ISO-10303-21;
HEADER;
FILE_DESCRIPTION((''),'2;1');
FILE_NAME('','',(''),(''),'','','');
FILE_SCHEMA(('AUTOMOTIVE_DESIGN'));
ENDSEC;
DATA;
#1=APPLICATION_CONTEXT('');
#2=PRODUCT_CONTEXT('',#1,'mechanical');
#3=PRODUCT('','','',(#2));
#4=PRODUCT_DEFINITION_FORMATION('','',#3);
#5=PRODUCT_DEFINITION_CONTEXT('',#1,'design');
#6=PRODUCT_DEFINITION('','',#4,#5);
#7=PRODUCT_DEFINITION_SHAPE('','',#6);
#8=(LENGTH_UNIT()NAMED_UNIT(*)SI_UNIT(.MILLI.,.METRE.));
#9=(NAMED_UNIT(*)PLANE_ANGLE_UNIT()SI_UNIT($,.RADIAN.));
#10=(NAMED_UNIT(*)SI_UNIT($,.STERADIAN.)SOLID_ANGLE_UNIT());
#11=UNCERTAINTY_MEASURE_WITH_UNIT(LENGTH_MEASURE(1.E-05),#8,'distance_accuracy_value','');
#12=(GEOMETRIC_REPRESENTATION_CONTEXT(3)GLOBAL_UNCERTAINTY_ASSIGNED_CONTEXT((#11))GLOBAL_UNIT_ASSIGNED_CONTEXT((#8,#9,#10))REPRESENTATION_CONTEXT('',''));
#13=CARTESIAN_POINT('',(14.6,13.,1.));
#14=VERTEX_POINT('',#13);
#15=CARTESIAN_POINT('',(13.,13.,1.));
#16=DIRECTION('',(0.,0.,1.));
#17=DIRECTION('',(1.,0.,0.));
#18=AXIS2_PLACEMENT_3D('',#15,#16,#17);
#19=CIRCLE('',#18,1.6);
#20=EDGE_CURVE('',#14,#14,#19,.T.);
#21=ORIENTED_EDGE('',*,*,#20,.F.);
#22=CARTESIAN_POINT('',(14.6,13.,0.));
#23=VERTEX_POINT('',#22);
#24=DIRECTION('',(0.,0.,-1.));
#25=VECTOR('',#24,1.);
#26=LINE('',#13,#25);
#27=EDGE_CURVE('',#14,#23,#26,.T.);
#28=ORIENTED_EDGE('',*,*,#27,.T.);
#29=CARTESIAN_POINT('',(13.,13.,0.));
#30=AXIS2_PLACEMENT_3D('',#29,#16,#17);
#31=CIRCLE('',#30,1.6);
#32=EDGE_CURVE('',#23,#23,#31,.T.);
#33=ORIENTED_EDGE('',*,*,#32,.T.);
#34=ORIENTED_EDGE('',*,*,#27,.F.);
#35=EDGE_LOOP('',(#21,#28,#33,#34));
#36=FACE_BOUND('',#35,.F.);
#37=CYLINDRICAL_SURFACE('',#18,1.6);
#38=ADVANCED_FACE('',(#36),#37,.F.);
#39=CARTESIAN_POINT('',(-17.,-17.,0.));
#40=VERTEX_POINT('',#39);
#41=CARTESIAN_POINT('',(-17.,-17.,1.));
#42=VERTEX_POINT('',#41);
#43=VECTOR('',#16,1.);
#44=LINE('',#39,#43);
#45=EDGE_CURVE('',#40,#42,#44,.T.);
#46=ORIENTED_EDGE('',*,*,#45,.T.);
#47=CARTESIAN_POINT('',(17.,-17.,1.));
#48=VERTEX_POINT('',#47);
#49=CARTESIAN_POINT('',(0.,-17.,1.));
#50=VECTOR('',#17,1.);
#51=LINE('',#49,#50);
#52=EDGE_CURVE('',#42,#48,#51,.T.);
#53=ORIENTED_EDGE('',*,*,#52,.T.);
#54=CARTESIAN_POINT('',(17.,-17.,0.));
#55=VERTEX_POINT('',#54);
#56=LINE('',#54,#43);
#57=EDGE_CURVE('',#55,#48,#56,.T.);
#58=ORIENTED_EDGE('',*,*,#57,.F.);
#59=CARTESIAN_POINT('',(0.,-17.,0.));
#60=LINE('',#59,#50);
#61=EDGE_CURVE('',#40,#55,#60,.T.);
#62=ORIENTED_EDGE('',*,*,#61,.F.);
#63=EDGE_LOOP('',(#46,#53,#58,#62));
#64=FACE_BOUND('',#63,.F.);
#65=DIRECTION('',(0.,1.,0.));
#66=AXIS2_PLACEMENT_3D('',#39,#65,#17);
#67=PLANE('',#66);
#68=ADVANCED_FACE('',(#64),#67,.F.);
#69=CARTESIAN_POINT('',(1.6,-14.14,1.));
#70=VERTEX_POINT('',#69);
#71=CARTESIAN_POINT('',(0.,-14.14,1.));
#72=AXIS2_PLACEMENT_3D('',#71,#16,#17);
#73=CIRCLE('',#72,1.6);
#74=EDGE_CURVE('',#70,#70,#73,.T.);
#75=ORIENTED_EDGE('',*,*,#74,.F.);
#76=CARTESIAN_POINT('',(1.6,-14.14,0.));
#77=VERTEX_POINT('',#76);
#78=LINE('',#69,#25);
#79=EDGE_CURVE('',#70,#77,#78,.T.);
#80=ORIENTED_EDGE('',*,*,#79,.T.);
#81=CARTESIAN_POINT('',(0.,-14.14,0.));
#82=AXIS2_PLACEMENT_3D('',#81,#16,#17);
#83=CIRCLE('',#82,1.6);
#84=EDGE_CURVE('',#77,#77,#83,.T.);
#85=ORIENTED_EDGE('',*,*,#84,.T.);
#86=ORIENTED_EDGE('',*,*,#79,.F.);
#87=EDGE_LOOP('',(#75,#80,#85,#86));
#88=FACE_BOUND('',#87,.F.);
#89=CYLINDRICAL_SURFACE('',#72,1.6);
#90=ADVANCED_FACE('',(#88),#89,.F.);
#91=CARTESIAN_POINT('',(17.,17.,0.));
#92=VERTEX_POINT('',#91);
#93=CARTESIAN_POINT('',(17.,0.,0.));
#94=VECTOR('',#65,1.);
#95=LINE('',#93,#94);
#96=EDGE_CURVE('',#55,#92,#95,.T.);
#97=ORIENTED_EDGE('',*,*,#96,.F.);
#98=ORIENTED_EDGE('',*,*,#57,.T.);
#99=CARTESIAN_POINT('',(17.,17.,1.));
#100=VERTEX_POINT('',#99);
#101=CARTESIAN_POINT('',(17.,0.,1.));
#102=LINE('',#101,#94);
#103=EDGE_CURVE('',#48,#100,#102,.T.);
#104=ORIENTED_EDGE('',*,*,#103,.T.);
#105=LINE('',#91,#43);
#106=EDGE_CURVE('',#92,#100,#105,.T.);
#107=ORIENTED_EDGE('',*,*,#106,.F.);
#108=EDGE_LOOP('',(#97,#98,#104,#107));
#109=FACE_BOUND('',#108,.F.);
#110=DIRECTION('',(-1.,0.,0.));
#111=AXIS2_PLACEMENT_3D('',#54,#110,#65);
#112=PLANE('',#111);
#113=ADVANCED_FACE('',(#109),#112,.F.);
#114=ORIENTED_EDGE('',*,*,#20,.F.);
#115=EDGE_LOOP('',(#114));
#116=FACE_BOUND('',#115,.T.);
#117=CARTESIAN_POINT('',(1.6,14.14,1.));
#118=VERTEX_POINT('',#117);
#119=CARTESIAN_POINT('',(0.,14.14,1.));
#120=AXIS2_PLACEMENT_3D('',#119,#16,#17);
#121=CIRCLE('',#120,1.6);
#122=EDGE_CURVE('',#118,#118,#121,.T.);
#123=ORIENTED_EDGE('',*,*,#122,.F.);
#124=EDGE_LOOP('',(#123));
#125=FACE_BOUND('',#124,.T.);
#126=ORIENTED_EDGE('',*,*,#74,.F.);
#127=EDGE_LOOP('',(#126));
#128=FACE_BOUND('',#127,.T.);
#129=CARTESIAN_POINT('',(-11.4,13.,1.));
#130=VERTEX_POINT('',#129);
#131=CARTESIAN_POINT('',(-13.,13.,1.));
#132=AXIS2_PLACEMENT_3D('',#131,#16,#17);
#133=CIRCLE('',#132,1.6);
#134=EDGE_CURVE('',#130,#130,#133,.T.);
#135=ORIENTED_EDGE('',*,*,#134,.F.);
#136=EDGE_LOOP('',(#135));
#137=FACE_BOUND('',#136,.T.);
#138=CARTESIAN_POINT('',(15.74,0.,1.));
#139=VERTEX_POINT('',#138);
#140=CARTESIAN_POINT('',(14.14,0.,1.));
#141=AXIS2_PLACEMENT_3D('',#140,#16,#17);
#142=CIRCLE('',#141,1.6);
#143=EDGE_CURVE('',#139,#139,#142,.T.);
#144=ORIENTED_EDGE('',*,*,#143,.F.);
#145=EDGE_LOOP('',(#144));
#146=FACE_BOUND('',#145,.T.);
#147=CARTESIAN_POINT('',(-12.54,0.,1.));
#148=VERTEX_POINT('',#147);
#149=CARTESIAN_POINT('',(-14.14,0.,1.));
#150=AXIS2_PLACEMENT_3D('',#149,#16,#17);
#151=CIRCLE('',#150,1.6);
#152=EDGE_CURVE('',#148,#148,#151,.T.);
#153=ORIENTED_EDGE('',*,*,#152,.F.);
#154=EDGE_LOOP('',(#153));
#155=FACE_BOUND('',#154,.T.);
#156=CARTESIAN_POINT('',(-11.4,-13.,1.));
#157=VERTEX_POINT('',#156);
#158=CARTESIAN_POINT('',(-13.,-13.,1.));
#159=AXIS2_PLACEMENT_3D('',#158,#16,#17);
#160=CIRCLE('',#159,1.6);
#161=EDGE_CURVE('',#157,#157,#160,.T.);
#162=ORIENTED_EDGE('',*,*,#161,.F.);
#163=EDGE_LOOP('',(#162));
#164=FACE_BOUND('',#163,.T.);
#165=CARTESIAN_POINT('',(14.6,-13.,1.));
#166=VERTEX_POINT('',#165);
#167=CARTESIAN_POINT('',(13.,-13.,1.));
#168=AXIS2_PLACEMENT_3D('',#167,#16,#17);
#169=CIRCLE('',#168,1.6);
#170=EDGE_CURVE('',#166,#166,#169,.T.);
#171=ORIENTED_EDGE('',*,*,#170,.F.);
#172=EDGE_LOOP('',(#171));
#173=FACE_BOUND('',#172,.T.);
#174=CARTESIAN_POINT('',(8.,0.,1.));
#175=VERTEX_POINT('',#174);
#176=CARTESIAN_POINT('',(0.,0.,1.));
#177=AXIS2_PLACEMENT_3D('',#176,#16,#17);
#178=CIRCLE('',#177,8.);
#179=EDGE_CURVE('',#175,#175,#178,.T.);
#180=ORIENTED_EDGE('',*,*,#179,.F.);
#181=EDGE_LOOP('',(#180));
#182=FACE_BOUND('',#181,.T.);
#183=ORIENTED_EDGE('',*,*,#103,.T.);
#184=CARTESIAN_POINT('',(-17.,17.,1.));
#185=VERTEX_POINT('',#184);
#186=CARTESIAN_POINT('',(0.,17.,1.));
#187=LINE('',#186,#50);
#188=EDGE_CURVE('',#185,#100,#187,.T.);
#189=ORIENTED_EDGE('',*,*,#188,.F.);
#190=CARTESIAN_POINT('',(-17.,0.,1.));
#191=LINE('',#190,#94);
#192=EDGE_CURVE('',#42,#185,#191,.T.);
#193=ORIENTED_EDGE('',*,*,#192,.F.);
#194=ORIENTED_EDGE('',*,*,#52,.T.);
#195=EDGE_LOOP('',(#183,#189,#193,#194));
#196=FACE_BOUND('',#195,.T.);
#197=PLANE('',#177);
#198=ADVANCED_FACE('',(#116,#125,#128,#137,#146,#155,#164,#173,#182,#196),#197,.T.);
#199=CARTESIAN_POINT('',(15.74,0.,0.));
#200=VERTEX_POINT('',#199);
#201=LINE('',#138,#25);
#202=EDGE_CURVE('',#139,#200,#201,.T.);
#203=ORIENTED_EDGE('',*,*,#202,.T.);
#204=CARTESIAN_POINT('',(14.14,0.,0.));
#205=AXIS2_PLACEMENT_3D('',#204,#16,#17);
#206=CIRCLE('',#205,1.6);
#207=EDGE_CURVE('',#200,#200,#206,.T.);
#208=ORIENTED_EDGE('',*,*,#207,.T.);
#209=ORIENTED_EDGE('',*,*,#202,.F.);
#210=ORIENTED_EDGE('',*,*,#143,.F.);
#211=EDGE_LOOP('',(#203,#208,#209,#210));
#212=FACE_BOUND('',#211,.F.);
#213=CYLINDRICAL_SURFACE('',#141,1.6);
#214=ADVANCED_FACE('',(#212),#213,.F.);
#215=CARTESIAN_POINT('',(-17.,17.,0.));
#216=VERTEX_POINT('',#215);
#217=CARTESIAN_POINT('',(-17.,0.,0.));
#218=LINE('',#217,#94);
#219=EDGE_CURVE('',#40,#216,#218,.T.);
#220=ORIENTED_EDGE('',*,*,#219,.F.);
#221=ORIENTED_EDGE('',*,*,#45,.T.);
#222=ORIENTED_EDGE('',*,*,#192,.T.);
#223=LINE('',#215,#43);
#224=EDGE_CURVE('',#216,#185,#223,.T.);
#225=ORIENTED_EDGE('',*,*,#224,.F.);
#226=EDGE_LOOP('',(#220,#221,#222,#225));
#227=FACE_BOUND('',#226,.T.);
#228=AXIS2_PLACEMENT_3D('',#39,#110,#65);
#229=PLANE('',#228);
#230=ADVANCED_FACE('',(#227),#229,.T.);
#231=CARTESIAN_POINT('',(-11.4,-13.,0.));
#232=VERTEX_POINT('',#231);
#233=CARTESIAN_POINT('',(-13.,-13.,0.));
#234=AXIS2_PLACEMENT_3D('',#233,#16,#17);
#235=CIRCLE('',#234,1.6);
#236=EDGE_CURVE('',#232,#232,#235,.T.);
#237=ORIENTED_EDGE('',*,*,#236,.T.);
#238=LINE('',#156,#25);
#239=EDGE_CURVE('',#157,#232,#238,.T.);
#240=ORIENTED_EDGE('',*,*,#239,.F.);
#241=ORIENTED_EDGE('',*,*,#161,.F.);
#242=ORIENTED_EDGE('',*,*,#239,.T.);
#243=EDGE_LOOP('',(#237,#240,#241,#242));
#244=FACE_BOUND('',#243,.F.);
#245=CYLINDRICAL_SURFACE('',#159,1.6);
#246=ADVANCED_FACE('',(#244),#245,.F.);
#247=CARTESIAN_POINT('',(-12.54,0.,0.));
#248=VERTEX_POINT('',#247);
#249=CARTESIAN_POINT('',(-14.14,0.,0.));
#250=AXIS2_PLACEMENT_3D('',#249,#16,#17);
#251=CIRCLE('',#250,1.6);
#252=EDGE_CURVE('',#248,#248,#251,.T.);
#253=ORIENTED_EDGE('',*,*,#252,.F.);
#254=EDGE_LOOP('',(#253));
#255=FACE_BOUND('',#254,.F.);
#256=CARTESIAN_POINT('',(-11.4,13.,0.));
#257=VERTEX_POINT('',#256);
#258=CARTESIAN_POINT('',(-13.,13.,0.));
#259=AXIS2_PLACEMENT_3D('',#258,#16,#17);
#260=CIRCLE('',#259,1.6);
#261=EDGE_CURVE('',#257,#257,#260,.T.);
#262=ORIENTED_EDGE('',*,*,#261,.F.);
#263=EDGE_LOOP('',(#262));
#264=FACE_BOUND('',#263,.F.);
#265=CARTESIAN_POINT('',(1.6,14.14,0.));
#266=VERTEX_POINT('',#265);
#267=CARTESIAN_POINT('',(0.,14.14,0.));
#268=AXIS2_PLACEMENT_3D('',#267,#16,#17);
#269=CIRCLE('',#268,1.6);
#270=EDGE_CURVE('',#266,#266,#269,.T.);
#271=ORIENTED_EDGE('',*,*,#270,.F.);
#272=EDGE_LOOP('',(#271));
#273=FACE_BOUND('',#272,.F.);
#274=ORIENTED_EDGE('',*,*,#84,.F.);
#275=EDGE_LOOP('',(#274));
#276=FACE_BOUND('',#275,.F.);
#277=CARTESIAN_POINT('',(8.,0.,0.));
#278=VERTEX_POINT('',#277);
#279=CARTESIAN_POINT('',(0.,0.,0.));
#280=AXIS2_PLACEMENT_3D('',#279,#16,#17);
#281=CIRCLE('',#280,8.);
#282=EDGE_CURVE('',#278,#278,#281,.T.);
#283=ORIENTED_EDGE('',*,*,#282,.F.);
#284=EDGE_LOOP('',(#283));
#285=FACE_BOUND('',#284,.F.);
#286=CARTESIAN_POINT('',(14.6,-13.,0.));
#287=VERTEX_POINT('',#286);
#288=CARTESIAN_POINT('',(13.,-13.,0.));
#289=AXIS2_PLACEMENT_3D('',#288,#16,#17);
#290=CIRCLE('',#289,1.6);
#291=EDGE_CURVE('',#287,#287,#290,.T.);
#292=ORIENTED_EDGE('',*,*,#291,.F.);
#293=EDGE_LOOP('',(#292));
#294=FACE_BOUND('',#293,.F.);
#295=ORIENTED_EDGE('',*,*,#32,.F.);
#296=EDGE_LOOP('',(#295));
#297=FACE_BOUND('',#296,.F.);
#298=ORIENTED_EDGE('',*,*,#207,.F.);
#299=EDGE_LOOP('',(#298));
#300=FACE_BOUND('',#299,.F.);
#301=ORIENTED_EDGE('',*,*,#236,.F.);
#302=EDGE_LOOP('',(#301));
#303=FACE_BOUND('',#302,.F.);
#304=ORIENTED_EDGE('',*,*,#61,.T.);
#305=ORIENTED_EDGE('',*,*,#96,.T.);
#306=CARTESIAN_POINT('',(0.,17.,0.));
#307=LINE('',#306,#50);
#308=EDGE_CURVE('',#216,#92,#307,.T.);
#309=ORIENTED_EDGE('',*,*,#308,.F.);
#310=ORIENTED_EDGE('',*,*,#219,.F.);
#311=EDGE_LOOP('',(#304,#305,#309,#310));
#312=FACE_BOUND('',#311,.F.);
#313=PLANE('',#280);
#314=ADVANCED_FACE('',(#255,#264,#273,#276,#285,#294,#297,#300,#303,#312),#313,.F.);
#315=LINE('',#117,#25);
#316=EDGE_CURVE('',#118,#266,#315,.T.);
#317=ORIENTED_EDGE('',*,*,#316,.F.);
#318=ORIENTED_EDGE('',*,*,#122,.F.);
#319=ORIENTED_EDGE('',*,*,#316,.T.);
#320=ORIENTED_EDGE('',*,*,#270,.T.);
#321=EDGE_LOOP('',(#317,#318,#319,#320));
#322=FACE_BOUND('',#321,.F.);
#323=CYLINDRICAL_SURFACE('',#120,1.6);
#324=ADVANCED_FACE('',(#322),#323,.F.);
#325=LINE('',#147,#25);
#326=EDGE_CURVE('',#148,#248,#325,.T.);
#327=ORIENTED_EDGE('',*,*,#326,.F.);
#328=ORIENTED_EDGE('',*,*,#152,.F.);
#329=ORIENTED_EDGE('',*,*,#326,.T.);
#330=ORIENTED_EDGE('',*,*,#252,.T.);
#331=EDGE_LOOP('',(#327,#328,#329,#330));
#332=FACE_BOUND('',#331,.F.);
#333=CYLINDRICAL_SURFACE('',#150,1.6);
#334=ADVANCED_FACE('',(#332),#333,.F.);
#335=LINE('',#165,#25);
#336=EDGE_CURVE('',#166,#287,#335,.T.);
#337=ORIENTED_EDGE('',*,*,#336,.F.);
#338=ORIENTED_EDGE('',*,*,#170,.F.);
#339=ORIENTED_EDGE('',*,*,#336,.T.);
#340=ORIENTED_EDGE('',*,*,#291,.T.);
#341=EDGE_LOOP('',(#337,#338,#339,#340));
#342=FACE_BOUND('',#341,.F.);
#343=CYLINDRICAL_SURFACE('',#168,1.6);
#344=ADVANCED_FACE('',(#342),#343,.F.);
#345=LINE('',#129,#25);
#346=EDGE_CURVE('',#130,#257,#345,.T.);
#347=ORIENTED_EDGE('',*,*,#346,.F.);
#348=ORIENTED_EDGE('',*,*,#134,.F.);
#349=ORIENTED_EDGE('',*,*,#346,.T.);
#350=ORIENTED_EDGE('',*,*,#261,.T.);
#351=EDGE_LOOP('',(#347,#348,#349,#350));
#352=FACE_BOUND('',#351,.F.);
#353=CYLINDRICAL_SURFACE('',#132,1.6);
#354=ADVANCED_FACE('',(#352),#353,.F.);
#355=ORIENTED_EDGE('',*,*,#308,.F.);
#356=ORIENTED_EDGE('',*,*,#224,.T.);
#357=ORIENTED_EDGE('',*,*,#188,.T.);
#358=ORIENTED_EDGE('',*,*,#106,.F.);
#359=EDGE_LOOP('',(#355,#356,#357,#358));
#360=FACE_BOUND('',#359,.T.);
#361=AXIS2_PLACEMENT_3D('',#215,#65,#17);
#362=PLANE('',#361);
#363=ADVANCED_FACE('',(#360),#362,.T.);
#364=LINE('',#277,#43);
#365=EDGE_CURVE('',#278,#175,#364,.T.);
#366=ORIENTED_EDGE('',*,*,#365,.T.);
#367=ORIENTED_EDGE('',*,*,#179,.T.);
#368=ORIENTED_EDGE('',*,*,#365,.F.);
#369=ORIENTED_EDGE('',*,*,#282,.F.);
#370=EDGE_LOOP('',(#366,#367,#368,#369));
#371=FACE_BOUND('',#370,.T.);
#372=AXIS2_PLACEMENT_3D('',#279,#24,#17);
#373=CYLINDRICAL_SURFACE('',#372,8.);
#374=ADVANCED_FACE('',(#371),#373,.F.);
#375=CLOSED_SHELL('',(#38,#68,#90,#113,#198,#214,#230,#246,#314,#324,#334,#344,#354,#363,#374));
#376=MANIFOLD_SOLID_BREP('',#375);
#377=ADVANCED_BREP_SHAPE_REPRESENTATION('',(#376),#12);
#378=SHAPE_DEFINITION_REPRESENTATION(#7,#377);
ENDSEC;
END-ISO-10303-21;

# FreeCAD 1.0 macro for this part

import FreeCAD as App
import Part
import Sketcher
from FreeCAD import Vector

doc = App.newDocument("Part")
body = doc.addObject("PartDesign::Body", "Body")

sketch1 = doc.addObject("Sketcher::SketchObject", "Sketch")
body.addObject(sketch1)
sketch1.AttachmentSupport = (doc.XY_Plane, [""])
sketch1.MapMode = "FlatFace"
sketch1.addGeometry(Part.LineSegment(Vector(-17, 17, 0), Vector(-17, -17, 0)), False)
sketch1.addGeometry(Part.LineSegment(Vector(-17, -17, 0), Vector(17, -17, 0)), False)
sketch1.addGeometry(Part.LineSegment(Vector(17, -17, 0), Vector(17, 17, 0)), False)
sketch1.addGeometry(Part.LineSegment(Vector(17, 17, 0), Vector(-17, 17, 0)), False)
sketch1.addGeometry(Part.Circle(Vector(0, 0, 0), Vector(0, 0, 1), 8), False)
sketch1.addConstraint(Sketcher.Constraint("Coincident", 0, 2, 1, 1))
sketch1.addConstraint(Sketcher.Constraint("Coincident", 1, 2, 2, 1))
sketch1.addConstraint(Sketcher.Constraint("Coincident", 2, 2, 3, 1))
sketch1.addConstraint(Sketcher.Constraint("Coincident", 3, 2, 0, 1))
sketch1.addConstraint(Sketcher.Constraint("Vertical", 0))
sketch1.addConstraint(Sketcher.Constraint("Horizontal", 1))
sketch1.addConstraint(Sketcher.Constraint("Vertical", 2))
sketch1.addConstraint(Sketcher.Constraint("Horizontal", 3))
sketch1.addConstraint(Sketcher.Constraint("Coincident", 4, 3, -1, 1))
sketch1.addConstraint(Sketcher.Constraint("Symmetric", 0, 2, 2, 2, -1, 1))
sketch1.addConstraint(Sketcher.Constraint("Equal", 3, 0))
sketch1.addConstraint(Sketcher.Constraint("Diameter", 4, 16.0))
sketch1.addConstraint(Sketcher.Constraint("DistanceX", 1, 1, 1, 2, 34.0))
pad1 = doc.addObject("PartDesign::Pad", "Pad")
body.addObject(pad1)
pad1.Profile = sketch1
pad1.Length = 1

sketch2 = doc.addObject("Sketcher::SketchObject", "Sketch001")
body.addObject(sketch2)
sketch2.AttachmentSupport = (doc.XY_Plane, [""])
sketch2.MapMode = "FlatFace"
sketch2.AttachmentOffset = App.Placement(Vector(0, 0, 1), App.Rotation())
sketch2.addGeometry(Part.Circle(Vector(0, 14.14, 0), Vector(0, 0, 1), 1.6), False)
sketch2.addGeometry(Part.Circle(Vector(14.14, 0, 0), Vector(0, 0, 1), 1.6), False)
sketch2.addGeometry(Part.Circle(Vector(-14.14, 0, 0), Vector(0, 0, 1), 1.6), False)
sketch2.addGeometry(Part.Circle(Vector(0, -14.14, 0), Vector(0, 0, 1), 1.6), False)
sketch2.addConstraint(Sketcher.Constraint("Equal", 0, 1))
sketch2.addConstraint(Sketcher.Constraint("Equal", 1, 2))
sketch2.addConstraint(Sketcher.Constraint("Equal", 2, 3))
sketch2.addConstraint(Sketcher.Constraint("Symmetric", 1, 3, 2, 3, -1, 1))
sketch2.addConstraint(Sketcher.Constraint("Symmetric", 0, 3, 3, 3, -1, 1))
sketch2.addConstraint(Sketcher.Constraint("PointOnObject", 0, 3, -2))
sketch2.addConstraint(Sketcher.Constraint("PointOnObject", 1, 3, -1))
sketch2.addConstraint(Sketcher.Constraint("Diameter", 0, 3.2))
sketch2.addConstraint(Sketcher.Constraint("DistanceY", -1, 1, 0, 3, 14.14))
sketch2.addConstraint(Sketcher.Constraint("DistanceX", -1, 1, 1, 3, 14.14))
pocket1 = doc.addObject("PartDesign::Pocket", "Pocket")
body.addObject(pocket1)
pocket1.Profile = sketch2
pocket1.Length = 5

sketch3 = doc.addObject("Sketcher::SketchObject", "Sketch002")
body.addObject(sketch3)
sketch3.AttachmentSupport = (doc.XY_Plane, [""])
sketch3.MapMode = "FlatFace"
sketch3.AttachmentOffset = App.Placement(Vector(0, 0, 1), App.Rotation())
sketch3.addGeometry(Part.Circle(Vector(-13, 13, 0), Vector(0, 0, 1), 1.6), False)
sketch3.addGeometry(Part.Circle(Vector(13, 13, 0), Vector(0, 0, 1), 1.6), False)
sketch3.addGeometry(Part.Circle(Vector(-13, -13, 0), Vector(0, 0, 1), 1.6), False)
sketch3.addGeometry(Part.Circle(Vector(13, -13, 0), Vector(0, 0, 1), 1.6), False)
sketch3.addConstraint(Sketcher.Constraint("Equal", 0, 1))
sketch3.addConstraint(Sketcher.Constraint("Equal", 1, 2))
sketch3.addConstraint(Sketcher.Constraint("Equal", 2, 3))
sketch3.addConstraint(Sketcher.Constraint("Symmetric", 1, 3, 2, 3, -1, 1))
sketch3.addConstraint(Sketcher.Constraint("Symmetric", 0, 3, 3, 3, -1, 1))
sketch3.addConstraint(Sketcher.Constraint("Symmetric", 0, 3, 1, 3, -2))
sketch3.addConstraint(Sketcher.Constraint("Diameter", 0, 3.2))
sketch3.addConstraint(Sketcher.Constraint("DistanceX", 0, 3, -1, 1, 13.0))
sketch3.addConstraint(Sketcher.Constraint("DistanceY", -1, 1, 0, 3, 13.0))
pocket2 = doc.addObject("PartDesign::Pocket", "Pocket001")
body.addObject(pocket2)
pocket2.Profile = sketch3
pocket2.Length = 5

doc.recompute()
